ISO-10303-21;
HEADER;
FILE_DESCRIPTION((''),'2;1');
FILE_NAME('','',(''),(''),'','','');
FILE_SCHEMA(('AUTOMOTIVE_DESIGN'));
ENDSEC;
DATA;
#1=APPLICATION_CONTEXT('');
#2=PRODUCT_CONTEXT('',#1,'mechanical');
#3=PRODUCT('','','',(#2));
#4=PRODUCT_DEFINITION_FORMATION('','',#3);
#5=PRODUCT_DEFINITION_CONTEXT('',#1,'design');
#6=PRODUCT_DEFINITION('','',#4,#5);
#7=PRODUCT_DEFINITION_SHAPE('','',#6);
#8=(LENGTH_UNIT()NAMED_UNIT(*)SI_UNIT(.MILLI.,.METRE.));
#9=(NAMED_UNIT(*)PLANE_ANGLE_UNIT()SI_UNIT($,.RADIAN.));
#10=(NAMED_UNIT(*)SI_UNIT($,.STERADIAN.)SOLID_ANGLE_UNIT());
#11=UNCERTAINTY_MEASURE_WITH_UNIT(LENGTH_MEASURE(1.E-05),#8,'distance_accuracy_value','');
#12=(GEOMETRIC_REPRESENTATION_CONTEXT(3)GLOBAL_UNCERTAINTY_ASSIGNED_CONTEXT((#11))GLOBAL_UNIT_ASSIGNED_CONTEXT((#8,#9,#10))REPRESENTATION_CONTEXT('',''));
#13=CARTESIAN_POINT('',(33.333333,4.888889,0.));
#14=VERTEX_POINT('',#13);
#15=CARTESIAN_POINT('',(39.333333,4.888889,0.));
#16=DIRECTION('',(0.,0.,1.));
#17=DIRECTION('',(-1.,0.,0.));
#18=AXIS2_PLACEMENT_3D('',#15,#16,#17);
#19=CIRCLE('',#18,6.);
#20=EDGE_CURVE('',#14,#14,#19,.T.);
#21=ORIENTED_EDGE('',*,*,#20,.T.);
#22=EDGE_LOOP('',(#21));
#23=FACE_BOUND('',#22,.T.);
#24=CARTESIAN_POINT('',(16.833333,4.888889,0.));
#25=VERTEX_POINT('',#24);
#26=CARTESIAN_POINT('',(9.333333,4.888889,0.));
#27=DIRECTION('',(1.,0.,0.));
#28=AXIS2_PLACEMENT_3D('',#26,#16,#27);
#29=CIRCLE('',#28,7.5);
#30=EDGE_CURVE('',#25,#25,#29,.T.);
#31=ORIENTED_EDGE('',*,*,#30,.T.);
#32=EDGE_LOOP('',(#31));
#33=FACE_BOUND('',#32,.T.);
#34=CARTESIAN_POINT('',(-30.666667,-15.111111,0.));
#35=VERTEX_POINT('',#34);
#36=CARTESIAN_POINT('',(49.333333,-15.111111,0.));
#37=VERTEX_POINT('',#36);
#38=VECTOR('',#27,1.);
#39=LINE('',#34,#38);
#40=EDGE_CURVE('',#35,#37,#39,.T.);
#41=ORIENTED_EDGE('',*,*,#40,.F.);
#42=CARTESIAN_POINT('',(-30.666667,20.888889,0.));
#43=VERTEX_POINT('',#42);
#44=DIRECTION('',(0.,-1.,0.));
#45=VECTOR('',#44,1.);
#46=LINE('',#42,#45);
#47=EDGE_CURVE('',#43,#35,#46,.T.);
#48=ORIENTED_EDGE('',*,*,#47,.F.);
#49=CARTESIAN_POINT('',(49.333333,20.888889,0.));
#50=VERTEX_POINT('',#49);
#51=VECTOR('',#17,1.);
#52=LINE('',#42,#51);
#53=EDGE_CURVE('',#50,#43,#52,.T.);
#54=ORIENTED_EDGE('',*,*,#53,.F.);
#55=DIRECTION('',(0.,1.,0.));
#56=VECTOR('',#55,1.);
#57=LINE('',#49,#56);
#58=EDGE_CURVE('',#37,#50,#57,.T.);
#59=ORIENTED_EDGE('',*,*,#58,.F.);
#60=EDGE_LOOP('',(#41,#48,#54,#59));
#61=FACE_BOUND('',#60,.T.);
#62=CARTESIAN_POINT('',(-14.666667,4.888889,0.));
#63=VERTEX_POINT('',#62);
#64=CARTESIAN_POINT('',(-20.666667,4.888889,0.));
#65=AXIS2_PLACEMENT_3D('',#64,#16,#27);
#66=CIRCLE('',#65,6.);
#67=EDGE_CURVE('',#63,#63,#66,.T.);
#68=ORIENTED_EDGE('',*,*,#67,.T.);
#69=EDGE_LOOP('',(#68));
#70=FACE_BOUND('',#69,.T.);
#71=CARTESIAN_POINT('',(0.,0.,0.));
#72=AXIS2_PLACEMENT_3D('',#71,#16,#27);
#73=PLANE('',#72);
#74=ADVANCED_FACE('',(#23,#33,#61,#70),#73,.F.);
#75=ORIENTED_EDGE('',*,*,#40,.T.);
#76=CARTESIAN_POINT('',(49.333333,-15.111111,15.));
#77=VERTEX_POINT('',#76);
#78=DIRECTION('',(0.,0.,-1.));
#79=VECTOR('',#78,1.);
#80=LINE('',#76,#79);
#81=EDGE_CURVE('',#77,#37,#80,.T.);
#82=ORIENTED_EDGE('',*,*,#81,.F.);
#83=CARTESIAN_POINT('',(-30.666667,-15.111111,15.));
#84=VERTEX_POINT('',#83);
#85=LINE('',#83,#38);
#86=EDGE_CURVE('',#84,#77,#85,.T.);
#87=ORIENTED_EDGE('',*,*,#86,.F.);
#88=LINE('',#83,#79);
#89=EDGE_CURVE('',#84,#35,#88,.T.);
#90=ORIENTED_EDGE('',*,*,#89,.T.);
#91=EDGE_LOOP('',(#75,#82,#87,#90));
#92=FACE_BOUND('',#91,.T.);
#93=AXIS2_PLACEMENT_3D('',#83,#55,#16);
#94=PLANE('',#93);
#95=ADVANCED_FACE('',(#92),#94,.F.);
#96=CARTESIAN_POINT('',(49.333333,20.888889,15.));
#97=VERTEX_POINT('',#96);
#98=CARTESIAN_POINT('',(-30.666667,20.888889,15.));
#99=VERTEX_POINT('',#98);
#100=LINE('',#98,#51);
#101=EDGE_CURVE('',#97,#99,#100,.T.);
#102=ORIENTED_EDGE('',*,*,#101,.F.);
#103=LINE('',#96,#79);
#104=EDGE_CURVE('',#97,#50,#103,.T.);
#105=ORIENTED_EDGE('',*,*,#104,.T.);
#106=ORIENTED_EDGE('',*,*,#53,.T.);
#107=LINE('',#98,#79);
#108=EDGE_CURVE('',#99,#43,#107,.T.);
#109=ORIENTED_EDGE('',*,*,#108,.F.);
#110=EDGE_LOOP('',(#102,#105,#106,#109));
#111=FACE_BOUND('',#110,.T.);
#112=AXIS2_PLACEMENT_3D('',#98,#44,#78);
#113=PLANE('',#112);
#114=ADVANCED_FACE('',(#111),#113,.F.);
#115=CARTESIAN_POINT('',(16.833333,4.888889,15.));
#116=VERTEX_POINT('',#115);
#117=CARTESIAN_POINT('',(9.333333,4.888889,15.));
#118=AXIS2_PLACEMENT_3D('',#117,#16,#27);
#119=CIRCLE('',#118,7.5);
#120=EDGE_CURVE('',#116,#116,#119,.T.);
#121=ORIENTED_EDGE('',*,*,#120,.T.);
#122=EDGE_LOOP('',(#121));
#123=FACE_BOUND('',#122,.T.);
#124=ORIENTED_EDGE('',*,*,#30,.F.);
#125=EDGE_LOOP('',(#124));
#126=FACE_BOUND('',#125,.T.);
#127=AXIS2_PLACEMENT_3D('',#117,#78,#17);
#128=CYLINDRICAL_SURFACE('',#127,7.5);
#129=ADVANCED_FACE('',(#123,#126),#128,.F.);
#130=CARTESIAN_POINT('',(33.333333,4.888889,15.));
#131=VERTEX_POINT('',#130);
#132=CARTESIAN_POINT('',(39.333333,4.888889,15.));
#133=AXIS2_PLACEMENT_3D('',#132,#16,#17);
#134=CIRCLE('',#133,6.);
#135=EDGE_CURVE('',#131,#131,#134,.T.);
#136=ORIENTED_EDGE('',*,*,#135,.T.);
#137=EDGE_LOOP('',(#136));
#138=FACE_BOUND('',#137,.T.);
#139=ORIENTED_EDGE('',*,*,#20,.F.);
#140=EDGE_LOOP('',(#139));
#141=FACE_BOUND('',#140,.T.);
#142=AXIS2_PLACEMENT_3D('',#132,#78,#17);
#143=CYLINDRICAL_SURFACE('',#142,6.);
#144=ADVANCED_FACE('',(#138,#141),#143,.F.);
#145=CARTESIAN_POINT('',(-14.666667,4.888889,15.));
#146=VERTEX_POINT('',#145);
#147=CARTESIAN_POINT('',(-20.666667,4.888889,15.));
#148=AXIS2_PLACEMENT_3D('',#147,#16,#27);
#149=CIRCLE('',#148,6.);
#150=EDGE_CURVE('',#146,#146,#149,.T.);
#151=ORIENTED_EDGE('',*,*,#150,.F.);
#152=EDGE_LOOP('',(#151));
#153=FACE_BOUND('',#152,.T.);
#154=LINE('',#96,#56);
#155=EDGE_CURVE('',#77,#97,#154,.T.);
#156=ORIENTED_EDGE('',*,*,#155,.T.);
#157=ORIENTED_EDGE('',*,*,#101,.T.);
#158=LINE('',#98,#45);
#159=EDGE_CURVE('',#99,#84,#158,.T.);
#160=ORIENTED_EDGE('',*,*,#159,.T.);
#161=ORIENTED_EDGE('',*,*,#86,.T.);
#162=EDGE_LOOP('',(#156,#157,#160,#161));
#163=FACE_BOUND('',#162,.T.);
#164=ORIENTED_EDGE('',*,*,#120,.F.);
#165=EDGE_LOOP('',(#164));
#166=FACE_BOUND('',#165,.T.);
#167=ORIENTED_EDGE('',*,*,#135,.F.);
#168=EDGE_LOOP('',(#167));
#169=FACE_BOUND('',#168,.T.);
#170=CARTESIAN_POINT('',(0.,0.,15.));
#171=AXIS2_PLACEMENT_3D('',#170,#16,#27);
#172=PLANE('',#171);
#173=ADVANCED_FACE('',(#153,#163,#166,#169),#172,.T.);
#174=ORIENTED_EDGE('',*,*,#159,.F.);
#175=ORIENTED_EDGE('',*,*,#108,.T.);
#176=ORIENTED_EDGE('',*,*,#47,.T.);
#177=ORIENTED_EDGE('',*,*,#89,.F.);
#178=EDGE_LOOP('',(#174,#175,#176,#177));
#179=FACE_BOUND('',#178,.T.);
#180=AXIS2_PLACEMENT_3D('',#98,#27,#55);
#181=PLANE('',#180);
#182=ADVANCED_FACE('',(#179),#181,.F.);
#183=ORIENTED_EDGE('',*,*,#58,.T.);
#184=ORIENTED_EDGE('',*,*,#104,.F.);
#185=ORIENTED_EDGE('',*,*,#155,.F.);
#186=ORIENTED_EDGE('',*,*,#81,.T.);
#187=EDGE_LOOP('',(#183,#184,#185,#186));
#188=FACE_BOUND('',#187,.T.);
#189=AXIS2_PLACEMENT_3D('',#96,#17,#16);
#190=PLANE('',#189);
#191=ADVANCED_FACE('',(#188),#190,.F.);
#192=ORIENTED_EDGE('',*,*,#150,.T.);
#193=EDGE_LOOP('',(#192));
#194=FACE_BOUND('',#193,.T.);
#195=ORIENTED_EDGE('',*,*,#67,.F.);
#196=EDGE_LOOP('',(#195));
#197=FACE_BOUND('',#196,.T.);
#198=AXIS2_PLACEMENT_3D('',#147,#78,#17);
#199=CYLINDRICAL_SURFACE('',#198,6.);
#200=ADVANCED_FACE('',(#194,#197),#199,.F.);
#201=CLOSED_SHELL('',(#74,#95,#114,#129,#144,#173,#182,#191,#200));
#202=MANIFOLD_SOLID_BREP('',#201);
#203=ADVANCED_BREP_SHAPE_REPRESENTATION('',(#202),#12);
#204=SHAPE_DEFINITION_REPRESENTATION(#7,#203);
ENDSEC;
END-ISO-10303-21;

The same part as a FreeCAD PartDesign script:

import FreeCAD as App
import Part
import Sketcher
Q = App.Units.Quantity


def add_polygon(sketch, points):
    """Adds a closed chain of lines whose ends are joined by coincident constraints."""
    first, n = sketch.GeometryCount, len(points)
    for a, b in zip(points, points[1:] + points[:1]):
        sketch.addGeometry(Part.LineSegment(App.Vector(*a, 0), App.Vector(*b, 0)), False)
    for i in range(n):
        sketch.addConstraint(Sketcher.Constraint("Coincident", first + i, 2, first + (i + 1) % n, 1))

doc = App.newDocument("Part")
body = doc.addObject("PartDesign::Body", "Body")

sketch1 = doc.addObject("Sketcher::SketchObject", "Sketch")
body.addObject(sketch1)
sketch1.AttachmentSupport = (doc.XY_Plane, [""])
sketch1.MapMode = "FlatFace"
add_polygon(sketch1, [(-31, 21), (-31, -15), (49, -15), (49, 21)])
sketch1.addGeometry(Part.Circle(App.Vector(-21, 5, 0), App.Vector(0, 0, 1), 6), False)
sketch1.addGeometry(Part.Circle(App.Vector(9, 5, 0), App.Vector(0, 0, 1), 8), False)
sketch1.addGeometry(Part.Circle(App.Vector(39, 5, 0), App.Vector(0, 0, 1), 6), False)
sketch1.addConstraint([
    Sketcher.Constraint("Vertical", 0),
    Sketcher.Constraint("Horizontal", 1),
    Sketcher.Constraint("Vertical", 2),
    Sketcher.Constraint("Horizontal", 3),
    Sketcher.Constraint("Equal", 4, 6),
    Sketcher.Constraint("Horizontal", 4, 3, 5, 3),
    Sketcher.Constraint("Horizontal", 5, 3, 6, 3),
    Sketcher.Constraint("Diameter", 4, Q("12 mm")),
    Sketcher.Constraint("Diameter", 5, Q("15 mm")),
    Sketcher.Constraint("DistanceX", 1, 1, 1, 2, Q("80 mm")),
    Sketcher.Constraint("DistanceY", 0, 2, 0, 1, Q("36 mm")),
    Sketcher.Constraint("DistanceX", 4, 3, 5, 3, Q("30 mm")),
    Sketcher.Constraint("DistanceX", 5, 3, 6, 3, Q("30 mm")),
    Sketcher.Constraint("DistanceX", 0, 2, 4, 3, Q("10 mm")),
    Sketcher.Constraint("DistanceY", 0, 2, 4, 3, Q("20 mm")),
    Sketcher.Constraint("DistanceY", -1, 1, 4, 3, Q("4.888889 mm")),
    Sketcher.Constraint("DistanceX", 4, 3, -1, 1, Q("20.666667 mm")),
])
pad1 = doc.addObject("PartDesign::Pad", "Pad")
body.addObject(pad1)
pad1.Profile = sketch1
pad1.Length = 15

doc.recompute()
